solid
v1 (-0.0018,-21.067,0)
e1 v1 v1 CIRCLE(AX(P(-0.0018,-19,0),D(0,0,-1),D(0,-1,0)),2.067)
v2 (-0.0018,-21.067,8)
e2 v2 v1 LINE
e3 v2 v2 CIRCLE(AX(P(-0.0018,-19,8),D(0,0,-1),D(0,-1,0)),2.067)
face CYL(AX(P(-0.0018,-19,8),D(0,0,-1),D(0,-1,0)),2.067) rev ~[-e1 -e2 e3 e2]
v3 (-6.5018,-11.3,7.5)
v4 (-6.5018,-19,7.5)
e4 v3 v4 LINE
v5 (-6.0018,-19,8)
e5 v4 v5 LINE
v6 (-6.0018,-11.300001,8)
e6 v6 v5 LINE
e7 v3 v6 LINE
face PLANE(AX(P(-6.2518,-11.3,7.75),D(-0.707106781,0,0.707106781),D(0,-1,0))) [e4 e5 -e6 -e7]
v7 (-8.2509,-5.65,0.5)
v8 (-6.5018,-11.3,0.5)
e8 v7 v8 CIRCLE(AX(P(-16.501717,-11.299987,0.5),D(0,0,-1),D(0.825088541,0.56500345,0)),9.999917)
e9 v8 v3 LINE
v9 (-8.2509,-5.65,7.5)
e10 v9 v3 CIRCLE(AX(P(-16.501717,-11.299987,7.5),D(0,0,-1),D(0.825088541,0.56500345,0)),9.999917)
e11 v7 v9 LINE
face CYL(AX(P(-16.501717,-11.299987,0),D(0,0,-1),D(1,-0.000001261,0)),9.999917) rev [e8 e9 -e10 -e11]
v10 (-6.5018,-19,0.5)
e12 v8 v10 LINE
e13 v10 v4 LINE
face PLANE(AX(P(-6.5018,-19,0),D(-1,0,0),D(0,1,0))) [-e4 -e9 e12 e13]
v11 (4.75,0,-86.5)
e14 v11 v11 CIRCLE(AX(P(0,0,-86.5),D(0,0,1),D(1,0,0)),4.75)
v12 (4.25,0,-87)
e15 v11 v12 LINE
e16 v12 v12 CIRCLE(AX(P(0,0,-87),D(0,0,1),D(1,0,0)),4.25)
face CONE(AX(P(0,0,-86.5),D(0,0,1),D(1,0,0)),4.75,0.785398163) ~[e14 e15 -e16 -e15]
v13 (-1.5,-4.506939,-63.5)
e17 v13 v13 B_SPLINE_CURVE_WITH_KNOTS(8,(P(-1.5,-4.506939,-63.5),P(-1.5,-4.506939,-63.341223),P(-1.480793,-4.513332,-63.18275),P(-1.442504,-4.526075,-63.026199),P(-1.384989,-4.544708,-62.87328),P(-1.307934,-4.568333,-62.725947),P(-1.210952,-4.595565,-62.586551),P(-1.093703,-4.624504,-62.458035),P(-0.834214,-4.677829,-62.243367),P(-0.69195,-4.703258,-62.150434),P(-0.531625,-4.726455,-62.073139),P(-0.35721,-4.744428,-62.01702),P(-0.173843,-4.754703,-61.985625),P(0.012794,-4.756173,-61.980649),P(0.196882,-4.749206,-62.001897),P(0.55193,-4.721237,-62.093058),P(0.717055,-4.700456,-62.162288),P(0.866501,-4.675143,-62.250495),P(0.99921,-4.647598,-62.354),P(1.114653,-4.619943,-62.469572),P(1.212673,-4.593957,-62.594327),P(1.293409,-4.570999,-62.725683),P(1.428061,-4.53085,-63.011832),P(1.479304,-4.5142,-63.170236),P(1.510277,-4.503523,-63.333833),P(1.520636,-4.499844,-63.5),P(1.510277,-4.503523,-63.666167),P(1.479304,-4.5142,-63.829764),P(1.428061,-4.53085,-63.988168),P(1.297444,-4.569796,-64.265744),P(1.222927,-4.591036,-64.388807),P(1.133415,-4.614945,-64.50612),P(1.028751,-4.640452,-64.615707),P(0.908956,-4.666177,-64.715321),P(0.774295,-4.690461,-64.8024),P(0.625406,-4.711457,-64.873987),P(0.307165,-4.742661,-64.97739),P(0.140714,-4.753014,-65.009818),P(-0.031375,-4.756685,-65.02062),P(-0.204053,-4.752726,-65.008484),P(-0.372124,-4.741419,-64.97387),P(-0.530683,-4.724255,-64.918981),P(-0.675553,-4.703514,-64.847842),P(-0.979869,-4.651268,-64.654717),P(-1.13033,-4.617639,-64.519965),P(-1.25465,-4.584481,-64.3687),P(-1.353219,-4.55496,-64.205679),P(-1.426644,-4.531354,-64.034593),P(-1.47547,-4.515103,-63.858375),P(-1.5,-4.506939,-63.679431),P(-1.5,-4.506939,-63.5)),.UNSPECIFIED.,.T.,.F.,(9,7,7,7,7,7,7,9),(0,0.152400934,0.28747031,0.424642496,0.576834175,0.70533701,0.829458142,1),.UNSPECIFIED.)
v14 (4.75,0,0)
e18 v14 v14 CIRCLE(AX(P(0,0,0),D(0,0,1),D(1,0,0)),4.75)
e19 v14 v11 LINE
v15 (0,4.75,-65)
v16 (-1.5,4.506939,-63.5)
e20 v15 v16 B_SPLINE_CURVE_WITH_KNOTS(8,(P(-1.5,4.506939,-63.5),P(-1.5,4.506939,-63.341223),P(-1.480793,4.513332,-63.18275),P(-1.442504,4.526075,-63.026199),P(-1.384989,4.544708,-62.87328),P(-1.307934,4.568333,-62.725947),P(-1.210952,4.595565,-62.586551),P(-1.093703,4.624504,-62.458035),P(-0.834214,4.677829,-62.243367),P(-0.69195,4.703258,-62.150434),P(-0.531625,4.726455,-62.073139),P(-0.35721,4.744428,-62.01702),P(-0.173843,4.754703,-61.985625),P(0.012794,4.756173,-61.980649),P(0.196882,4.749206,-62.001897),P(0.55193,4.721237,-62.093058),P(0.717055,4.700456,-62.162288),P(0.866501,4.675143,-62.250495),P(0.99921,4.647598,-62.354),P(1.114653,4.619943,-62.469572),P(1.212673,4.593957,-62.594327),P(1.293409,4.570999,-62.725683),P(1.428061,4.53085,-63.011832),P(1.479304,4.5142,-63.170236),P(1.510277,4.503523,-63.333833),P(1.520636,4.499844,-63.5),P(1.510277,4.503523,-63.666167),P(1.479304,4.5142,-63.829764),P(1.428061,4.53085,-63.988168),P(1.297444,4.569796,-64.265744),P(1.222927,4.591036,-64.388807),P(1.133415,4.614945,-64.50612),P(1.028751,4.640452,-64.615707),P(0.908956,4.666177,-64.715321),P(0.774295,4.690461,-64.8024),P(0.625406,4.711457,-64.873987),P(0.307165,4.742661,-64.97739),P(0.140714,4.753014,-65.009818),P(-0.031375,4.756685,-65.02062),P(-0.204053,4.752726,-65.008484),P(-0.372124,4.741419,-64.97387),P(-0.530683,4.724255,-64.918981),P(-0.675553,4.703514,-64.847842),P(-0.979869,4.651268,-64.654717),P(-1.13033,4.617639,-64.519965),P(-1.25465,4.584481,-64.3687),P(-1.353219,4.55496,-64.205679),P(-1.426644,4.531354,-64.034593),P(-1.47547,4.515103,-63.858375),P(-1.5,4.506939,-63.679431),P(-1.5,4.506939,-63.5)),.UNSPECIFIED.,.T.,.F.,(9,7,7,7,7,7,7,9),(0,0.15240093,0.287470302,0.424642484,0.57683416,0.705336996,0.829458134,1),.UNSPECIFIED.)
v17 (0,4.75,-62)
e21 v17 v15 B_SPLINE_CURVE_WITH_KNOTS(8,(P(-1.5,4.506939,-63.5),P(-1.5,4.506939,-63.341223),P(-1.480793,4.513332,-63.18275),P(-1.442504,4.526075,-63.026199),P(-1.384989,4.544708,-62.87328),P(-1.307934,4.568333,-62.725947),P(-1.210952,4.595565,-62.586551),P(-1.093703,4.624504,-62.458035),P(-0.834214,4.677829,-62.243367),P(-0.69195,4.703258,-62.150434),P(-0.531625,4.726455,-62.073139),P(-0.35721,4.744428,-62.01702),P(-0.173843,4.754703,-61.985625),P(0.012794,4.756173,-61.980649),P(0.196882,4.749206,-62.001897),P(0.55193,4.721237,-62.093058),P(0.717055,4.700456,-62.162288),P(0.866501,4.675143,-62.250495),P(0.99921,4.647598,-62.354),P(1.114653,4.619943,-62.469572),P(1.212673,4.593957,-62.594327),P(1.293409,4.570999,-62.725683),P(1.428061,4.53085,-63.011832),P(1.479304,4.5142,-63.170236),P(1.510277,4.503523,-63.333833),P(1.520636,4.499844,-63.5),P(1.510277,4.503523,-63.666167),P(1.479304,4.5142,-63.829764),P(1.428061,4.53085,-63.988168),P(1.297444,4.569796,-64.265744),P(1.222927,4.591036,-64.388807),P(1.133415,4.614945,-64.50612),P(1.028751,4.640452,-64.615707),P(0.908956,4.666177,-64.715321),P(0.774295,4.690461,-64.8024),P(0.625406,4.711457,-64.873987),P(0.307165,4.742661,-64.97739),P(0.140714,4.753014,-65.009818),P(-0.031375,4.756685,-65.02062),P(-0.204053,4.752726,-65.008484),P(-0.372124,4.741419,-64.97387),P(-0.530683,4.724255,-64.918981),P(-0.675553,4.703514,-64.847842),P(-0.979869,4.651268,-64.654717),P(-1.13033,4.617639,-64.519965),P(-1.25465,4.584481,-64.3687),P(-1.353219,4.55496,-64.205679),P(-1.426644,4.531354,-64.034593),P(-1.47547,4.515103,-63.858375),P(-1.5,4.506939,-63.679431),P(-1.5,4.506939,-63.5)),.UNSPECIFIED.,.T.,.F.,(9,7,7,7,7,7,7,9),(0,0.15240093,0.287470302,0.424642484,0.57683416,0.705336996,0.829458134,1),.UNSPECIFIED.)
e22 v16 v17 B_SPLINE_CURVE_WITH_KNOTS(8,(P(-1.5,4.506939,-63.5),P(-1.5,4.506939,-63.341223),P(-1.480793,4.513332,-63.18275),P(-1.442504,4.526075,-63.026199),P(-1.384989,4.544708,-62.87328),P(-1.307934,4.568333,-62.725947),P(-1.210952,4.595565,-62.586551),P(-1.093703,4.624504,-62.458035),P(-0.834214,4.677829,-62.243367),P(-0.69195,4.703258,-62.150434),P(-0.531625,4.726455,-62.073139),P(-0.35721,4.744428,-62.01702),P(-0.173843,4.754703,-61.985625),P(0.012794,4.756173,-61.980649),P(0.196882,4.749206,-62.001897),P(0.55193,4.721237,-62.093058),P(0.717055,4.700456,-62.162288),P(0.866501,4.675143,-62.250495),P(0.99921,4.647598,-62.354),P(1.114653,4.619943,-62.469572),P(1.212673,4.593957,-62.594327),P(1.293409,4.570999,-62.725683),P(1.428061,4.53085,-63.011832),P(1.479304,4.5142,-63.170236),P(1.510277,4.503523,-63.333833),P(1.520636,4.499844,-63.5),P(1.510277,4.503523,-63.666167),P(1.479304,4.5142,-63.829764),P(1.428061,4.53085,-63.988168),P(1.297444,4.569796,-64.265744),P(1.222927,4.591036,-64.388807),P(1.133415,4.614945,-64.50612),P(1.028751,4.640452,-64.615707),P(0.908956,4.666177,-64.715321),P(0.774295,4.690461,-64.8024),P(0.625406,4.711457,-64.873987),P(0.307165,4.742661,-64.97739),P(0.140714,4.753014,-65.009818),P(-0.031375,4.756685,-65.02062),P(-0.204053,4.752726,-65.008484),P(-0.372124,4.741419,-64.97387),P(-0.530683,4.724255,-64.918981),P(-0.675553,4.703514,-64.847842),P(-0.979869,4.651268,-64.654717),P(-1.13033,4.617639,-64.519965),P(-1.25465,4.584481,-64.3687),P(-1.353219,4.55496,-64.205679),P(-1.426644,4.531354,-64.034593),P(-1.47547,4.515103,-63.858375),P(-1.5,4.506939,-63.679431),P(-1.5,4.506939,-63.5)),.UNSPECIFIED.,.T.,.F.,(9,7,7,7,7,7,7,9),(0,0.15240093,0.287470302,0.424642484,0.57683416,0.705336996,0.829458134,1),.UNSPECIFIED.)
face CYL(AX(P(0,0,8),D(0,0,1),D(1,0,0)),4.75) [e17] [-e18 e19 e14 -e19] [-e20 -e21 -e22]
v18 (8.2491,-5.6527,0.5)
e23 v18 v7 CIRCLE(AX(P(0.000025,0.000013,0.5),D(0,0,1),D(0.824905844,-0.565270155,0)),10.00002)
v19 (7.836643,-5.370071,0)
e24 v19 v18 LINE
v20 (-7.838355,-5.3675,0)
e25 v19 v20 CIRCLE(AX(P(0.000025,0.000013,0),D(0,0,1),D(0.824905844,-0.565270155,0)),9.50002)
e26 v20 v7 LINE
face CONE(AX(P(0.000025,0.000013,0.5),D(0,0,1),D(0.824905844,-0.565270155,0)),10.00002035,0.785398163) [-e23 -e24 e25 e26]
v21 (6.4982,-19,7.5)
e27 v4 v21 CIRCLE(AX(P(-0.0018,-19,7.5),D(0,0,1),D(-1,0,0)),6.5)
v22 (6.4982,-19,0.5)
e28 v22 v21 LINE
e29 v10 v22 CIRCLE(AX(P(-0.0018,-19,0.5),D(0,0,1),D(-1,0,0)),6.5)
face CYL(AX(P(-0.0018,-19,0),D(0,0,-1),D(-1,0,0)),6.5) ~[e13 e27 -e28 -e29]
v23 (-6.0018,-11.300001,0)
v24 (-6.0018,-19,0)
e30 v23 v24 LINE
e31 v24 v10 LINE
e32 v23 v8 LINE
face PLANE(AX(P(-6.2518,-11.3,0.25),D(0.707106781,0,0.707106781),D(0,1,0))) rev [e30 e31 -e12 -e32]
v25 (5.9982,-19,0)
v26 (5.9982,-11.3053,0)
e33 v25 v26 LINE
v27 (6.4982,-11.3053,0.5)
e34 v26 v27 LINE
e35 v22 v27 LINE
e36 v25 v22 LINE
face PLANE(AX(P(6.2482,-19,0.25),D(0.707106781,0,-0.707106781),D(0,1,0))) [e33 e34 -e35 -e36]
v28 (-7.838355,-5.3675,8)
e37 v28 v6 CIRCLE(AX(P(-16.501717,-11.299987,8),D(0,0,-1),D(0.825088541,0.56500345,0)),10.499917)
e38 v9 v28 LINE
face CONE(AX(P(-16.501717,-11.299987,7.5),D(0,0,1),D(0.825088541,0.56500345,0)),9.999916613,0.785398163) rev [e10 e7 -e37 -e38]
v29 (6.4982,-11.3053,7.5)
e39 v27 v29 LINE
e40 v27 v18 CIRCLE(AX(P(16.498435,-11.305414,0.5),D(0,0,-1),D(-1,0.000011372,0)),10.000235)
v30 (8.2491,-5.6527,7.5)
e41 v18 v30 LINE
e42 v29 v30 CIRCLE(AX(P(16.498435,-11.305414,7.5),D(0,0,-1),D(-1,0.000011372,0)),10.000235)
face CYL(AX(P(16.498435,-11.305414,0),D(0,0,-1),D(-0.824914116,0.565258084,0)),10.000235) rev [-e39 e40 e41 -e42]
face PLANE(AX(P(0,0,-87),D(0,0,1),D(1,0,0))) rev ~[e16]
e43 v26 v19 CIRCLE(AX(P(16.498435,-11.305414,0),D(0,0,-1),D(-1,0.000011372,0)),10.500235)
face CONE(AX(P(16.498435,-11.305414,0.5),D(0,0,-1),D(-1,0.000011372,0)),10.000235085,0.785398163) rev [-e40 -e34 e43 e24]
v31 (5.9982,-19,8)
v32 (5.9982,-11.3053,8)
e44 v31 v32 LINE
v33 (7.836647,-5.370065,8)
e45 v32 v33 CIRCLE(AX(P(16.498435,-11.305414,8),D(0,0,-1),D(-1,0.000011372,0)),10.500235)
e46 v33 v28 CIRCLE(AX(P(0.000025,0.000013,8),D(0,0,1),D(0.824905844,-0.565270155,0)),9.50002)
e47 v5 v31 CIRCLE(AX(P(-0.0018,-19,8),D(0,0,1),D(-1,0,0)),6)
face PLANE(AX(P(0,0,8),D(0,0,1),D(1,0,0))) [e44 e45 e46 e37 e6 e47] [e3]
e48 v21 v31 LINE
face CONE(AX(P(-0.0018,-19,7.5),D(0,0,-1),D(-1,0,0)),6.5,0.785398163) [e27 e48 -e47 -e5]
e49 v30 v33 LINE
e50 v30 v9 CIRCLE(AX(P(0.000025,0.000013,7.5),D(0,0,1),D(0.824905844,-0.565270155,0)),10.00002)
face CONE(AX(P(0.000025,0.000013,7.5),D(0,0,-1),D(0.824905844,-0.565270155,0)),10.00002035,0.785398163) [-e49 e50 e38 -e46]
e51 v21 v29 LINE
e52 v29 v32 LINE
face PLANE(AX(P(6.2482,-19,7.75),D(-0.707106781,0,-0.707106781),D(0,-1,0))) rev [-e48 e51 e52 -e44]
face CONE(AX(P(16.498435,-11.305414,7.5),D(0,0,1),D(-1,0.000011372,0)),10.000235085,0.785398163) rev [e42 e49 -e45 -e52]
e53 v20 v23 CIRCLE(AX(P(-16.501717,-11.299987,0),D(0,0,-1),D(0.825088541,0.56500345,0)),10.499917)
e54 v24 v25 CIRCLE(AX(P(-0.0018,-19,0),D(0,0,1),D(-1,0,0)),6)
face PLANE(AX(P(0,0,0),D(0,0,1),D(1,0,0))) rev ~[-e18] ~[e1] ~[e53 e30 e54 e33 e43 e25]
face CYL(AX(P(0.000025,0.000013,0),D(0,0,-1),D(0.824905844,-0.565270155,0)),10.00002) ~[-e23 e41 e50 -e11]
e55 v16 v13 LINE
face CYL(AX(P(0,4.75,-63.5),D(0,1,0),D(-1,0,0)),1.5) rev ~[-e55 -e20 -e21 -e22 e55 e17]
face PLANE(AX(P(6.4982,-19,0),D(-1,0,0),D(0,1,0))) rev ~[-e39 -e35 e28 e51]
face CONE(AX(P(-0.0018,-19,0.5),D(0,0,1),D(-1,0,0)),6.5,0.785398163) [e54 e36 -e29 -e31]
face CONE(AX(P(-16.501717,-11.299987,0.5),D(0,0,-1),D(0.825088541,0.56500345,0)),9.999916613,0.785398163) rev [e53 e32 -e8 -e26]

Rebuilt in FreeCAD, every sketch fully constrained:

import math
import FreeCAD as App
import Part
import Sketcher
from FreeCAD import Vector


def edges_at(feature, points):
    """Names of the edges that pass closest to the given points."""
    edges = feature.Shape.Edges
    near = lambda p: min(range(len(edges)), key=lambda i: edges[i].distToShape(Part.Vertex(*p))[0])
    return sorted({f"Edge{near(p) + 1}" for p in points})

doc = App.newDocument("Part")
params = doc.addObject("Spreadsheet::Sheet", "Params")
for row, (alias, value) in enumerate([
    ("sketch1_radius", "10 mm"),
    ("sketch1_diameter", "9.5 mm"),
    ("sketch1_radius2", "6.5 mm"),
    ("sketch1_height", "7.7 mm"),
    ("pad1_length", "8 mm"),
    ("hole_diameter", "4.134 mm"),
    ("sketch3_diameter", "9.5 mm"),
    ("pad2_length", "95 mm"),
    ("chamfer_size", "0.5 mm"),
    ("sketch4_diameter", "3 mm"),
], start=1):
    params.set(f"A{row}", alias)
    params.set(f"B{row}", "=" + value)
    params.setAlias(f"B{row}", alias)

body = doc.addObject("PartDesign::Body", "Body")

# Sketch on XY plane
sketch1 = doc.addObject("Sketcher::SketchObject", "Sketch")
body.addObject(sketch1)
sketch1.AttachmentSupport = (doc.XY_Plane, [""])
sketch1.MapMode = "FlatFace"
sketch1.addGeometry([
    Part.ArcOfCircle(Part.Circle(Vector(16.5, -11.3, 0), Vector(0, 0, 1), 10), math.radians(146), math.radians(180)),  # 0
    Part.ArcOfCircle(Part.Circle(Vector(0, 0, 0), Vector(0, 0, 1), 10), math.radians(-34), math.radians(214)),  # 1
    Part.ArcOfCircle(Part.Circle(Vector(-16.5, -11.3, 0), Vector(0, 0, 1), 10), math.radians(0), math.radians(34)),  # 2
    Part.LineSegment(Vector(-6.5, -11.3, 0), Vector(-6.5, -19, 0)),  # 3
    Part.ArcOfCircle(Part.Circle(Vector(0, -19, 0), Vector(0, 0, 1), 6.5), math.radians(180), math.radians(360)),  # 4
    Part.LineSegment(Vector(6.5, -19, 0), Vector(6.5, -11.3, 0)),  # 5
    Part.Circle(Vector(0, 0, 0), Vector(0, 0, 1), 4.8),  # 6
], False)
sketch1.addConstraint([
    Sketcher.Constraint("Tangent", 0, 1, 1, 1),
    Sketcher.Constraint("Tangent", 1, 2, 2, 2),
    Sketcher.Constraint("Tangent", 2, 1, 3, 1),
    Sketcher.Constraint("Tangent", 3, 2, 4, 1),
    Sketcher.Constraint("Tangent", 4, 2, 5, 1),
    Sketcher.Constraint("Tangent", 5, 2, 0, 2),
    Sketcher.Constraint("Vertical", 3),
    Sketcher.Constraint("Vertical", 5),
    Sketcher.Constraint("Coincident", 1, 3, -1, 1),
    Sketcher.Constraint("Coincident", 6, 3, -1, 1),
    Sketcher.Constraint("Equal", 0, 1),
    Sketcher.Constraint("Equal", 1, 2),
    Sketcher.Constraint("Radius", 0, 10.0),
    Sketcher.Constraint("Diameter", 6, 9.5),
    Sketcher.Constraint("Radius", 4, 6.5),
    Sketcher.Constraint("DistanceY", 3, 2, 3, 1, 7.7),
    Sketcher.Constraint("DistanceY", 4, 3, -1, 1, 19.0),
])
sketch1.setExpression("Constraints[12]", "Params.sketch1_radius")
sketch1.setExpression("Constraints[13]", "Params.sketch1_diameter")
sketch1.setExpression("Constraints[14]", "Params.sketch1_radius2")
sketch1.setExpression("Constraints[15]", "Params.sketch1_height")
pad1 = doc.addObject("PartDesign::Pad", "Pad")
body.addObject(pad1)
pad1.Profile = sketch1
pad1.setExpression("Length", "Params.pad1_length")

# Sketch on XY plane
sketch2 = doc.addObject("Sketcher::SketchObject", "Sketch001")
body.addObject(sketch2)
sketch2.AttachmentSupport = (doc.XY_Plane, [""])
sketch2.MapMode = "FlatFace"
sketch2.AttachmentOffset = App.Placement(Vector(0, 0, 8), App.Rotation())
sketch2.addGeometry(Part.Circle(Vector(0, -19, 0), Vector(0, 0, 1), 2.1), False)
sketch2.addConstraint([
    Sketcher.Constraint("Diameter", 0, 4.134),
    Sketcher.Constraint("DistanceY", 0, 3, -1, 1, 19.0),
    Sketcher.Constraint("DistanceX", 0, 3, -1, 1, 0.0018),
])
doc.recompute()
hole = doc.addObject("PartDesign::Hole", "Hole")
body.addObject(hole)
hole.Profile = sketch2
hole.ThreadType = "None"
hole.setExpression("Diameter", "Params.hole_diameter")
hole.DepthType = "ThroughAll"

# Sketch on XY plane
sketch3 = doc.addObject("Sketcher::SketchObject", "Sketch002")
body.addObject(sketch3)
sketch3.AttachmentSupport = (doc.XY_Plane, [""])
sketch3.MapMode = "FlatFace"
sketch3.AttachmentOffset = App.Placement(Vector(0, 0, 8), App.Rotation())
sketch3.addGeometry(Part.Circle(Vector(0, 0, 0), Vector(0, 0, 1), 4.8), False)
sketch3.addConstraint([
    Sketcher.Constraint("Coincident", 0, 3, -1, 1),
    Sketcher.Constraint("Diameter", 0, 9.5),
])
sketch3.setExpression("Constraints[1]", "Params.sketch3_diameter")
pad2 = doc.addObject("PartDesign::Pad", "Pad001")
body.addObject(pad2)
pad2.Profile = sketch3
pad2.setExpression("Length", "Params.pad2_length")
pad2.Reversed = True
doc.recompute()

chamfer = doc.addObject("PartDesign::Chamfer", "Chamfer")
body.addObject(chamfer)
chamfer.Base = (pad2, edges_at(pad2, [
    (0.002, 10, 8),
    (-6.949, -8.343, 8),
    (-6.502, -15.15, 8),
    (-0.002, -25.5, 8),
    (6.498, -15.153, 8),
    (6.946, -8.347, 8),
    (-4.75, 0, -87),
    (-0.002, -25.5, 0),
    (6.498, -15.153, 0),
    (6.946, -8.347, 0),
    (0.002, 10, 0),
    (-6.949, -8.343, 0),
    (-6.502, -15.15, 0),
]))
chamfer.setExpression("Size", "Params.chamfer_size")

# Sketch on XZ plane
sketch4 = doc.addObject("Sketcher::SketchObject", "Sketch003")
body.addObject(sketch4)
sketch4.AttachmentSupport = (doc.XZ_Plane, [""])
sketch4.MapMode = "FlatFace"
sketch4.AttachmentOffset = App.Placement(Vector(0, 0, -4.75), App.Rotation())
sketch4.addGeometry(Part.Circle(Vector(0, -63.5, 0), Vector(0, 0, 1), 1.5), False)
sketch4.addConstraint([
    Sketcher.Constraint("PointOnObject", 0, 3, -2),
    Sketcher.Constraint("Diameter", 0, 3.0),
    Sketcher.Constraint("DistanceY", 0, 3, -1, 1, 63.5),
])
sketch4.setExpression("Constraints[1]", "Params.sketch4_diameter")
pocket1 = doc.addObject("PartDesign::Pocket", "Pocket")
body.addObject(pocket1)
pocket1.Profile = sketch4
pocket1.Type = "ThroughAll"
pocket1.Reversed = True

doc.recompute()
